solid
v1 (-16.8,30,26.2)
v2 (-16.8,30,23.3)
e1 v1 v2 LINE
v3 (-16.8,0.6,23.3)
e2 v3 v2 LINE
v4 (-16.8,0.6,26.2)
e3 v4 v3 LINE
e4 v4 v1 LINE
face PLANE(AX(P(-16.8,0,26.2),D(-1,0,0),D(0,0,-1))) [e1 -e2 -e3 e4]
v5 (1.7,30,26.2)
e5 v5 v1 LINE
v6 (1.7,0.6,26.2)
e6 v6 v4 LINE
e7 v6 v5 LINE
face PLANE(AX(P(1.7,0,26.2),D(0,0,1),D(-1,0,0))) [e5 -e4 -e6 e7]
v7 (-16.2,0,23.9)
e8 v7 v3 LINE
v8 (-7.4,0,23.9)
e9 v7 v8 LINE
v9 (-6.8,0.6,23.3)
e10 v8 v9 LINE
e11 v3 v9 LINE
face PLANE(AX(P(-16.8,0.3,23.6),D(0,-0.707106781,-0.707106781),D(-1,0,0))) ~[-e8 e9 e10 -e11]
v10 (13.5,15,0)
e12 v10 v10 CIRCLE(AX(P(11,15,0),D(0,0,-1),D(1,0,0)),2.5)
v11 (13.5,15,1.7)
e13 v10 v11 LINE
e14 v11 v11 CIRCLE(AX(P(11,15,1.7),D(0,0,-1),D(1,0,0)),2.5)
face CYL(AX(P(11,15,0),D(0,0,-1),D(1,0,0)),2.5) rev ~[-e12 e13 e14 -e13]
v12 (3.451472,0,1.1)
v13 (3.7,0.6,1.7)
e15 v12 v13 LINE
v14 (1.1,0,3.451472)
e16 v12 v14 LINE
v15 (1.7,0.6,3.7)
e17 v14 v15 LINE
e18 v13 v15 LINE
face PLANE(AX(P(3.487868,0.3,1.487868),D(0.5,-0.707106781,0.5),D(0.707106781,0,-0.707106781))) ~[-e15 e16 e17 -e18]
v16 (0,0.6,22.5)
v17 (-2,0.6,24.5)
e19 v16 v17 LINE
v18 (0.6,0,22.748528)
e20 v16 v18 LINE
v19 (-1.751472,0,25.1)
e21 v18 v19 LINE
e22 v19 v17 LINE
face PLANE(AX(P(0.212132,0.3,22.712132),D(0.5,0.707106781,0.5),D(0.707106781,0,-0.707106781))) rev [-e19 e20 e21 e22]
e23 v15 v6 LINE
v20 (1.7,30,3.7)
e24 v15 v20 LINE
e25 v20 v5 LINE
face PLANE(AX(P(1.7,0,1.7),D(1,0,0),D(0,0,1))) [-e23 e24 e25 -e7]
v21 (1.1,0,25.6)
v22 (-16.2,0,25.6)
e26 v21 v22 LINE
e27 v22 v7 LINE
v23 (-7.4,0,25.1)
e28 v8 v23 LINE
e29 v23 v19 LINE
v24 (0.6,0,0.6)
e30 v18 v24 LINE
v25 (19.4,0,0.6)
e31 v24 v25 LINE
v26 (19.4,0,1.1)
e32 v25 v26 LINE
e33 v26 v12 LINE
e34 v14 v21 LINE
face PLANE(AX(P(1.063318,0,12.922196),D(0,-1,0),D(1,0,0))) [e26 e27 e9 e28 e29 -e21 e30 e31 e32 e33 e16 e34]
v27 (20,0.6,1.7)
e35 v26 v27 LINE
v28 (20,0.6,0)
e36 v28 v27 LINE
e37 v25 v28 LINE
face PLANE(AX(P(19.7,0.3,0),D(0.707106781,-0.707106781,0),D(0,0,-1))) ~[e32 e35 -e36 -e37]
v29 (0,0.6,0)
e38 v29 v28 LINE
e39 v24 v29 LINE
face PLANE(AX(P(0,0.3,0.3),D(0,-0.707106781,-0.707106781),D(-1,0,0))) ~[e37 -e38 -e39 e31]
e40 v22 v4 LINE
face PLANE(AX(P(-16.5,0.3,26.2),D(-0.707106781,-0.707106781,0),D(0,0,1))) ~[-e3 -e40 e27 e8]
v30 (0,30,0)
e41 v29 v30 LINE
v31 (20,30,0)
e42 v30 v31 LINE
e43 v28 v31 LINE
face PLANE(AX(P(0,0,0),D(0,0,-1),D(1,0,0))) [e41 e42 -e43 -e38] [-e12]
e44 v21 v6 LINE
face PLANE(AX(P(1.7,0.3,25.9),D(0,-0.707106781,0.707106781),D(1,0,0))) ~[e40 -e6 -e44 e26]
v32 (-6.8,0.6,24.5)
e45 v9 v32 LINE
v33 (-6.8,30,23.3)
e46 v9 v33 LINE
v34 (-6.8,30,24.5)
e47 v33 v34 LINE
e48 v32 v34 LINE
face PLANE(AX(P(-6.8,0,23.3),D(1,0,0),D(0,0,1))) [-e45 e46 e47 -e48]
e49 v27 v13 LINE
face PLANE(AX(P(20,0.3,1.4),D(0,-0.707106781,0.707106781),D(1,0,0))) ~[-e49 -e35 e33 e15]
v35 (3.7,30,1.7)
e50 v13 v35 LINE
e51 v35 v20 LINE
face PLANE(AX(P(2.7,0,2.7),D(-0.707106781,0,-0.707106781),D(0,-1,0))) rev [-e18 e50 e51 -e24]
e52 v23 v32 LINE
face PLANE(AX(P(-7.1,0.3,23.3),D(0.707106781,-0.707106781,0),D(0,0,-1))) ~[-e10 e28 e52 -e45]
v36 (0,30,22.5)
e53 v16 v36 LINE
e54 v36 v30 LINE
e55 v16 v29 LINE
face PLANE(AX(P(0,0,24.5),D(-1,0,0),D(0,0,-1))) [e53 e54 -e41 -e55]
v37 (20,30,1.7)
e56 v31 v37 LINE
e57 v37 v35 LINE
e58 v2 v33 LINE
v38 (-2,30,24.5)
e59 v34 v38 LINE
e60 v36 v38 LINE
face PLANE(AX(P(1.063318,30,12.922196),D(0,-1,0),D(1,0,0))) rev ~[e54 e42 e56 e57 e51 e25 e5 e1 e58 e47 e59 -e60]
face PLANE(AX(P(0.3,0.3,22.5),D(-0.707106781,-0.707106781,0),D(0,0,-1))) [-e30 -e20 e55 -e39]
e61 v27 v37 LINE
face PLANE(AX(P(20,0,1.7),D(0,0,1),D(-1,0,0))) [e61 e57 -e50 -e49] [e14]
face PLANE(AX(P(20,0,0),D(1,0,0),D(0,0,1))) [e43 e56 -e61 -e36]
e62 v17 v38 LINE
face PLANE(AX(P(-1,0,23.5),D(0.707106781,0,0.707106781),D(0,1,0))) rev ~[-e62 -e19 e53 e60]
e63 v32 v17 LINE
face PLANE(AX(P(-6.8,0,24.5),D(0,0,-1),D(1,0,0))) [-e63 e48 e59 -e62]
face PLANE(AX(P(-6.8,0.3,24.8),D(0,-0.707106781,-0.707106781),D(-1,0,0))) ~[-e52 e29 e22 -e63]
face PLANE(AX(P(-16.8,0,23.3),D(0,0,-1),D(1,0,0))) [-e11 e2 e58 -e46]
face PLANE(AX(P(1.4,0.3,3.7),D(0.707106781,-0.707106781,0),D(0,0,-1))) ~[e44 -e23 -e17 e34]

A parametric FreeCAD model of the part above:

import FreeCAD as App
import Part
import Sketcher
from FreeCAD import Vector
Q = App.Units.Quantity


def edges_at(feature, points):
    """Names of the edges that pass closest to the given points."""
    edges = feature.Shape.Edges
    near = lambda p: min(range(len(edges)), key=lambda i: edges[i].distToShape(Part.Vertex(*p))[0])
    return sorted({f"Edge{near(p) + 1}" for p in points})


def add_polygon(sketch, points):
    """Adds a closed chain of lines whose ends are joined by coincident constraints."""
    first, n = sketch.GeometryCount, len(points)
    for a, b in zip(points, points[1:] + points[:1]):
        sketch.addGeometry(Part.LineSegment(App.Vector(*a, 0), App.Vector(*b, 0)), False)
    for i in range(n):
        sketch.addConstraint(Sketcher.Constraint("Coincident", first + i, 2, first + (i + 1) % n, 1))

doc = App.newDocument("Part")
body = doc.addObject("PartDesign::Body", "Body")

sketch1 = doc.addObject("Sketcher::SketchObject", "Sketch")
body.addObject(sketch1)
sketch1.AttachmentSupport = (doc.XZ_Plane, [""])
sketch1.MapMode = "FlatFace"
add_polygon(sketch1, [(0, 24.5), (0, 0), (20, 0), (20, 1.7), (1.7, 1.7), (1.7, 26.2), (-16.8, 26.2), (-16.8, 23.3), (-6.8, 23.3), (-6.8, 24.5)])
sketch1.addConstraint([
    Sketcher.Constraint("Vertical", 0),
    Sketcher.Constraint("Horizontal", 1),
    Sketcher.Constraint("Vertical", 2),
    Sketcher.Constraint("Horizontal", 3),
    Sketcher.Constraint("Vertical", 4),
    Sketcher.Constraint("Horizontal", 5),
    Sketcher.Constraint("Vertical", 6),
    Sketcher.Constraint("Horizontal", 7),
    Sketcher.Constraint("Vertical", 8),
    Sketcher.Constraint("Horizontal", 9),
    Sketcher.Constraint("Coincident", 0, 2, -1, 1),
    Sketcher.Constraint("Equal", 0, 4),
    Sketcher.Constraint("DistanceX", 1, 1, 1, 2, Q("20 mm")),
    Sketcher.Constraint("DistanceX", 7, 1, 7, 2, Q("10 mm")),
    Sketcher.Constraint("DistanceX", 3, 2, 3, 1, Q("18.3 mm")),
    Sketcher.Constraint("DistanceX", 5, 2, 5, 1, Q("18.5 mm")),
    Sketcher.Constraint("DistanceY", 0, 2, 0, 1, Q("24.5 mm")),
    Sketcher.Constraint("DistanceY", 2, 1, 2, 2, Q("1.7 mm")),
    Sketcher.Constraint("DistanceY", 6, 2, 6, 1, Q("2.9 mm")),
])
pad1 = doc.addObject("PartDesign::Pad", "Pad")
body.addObject(pad1)
pad1.Profile = sketch1
pad1.Length = 30
pad1.Reversed = True
doc.recompute()

chamfer = doc.addObject("PartDesign::Chamfer", "Chamfer")
body.addObject(chamfer)
chamfer.Base = (pad1, edges_at(pad1, [(1.7, 15, 1.7), (0, 15, 24.5)]))
chamfer.Size = 2
doc.recompute()

chamfer2 = doc.addObject("PartDesign::Chamfer", "Chamfer001")
body.addObject(chamfer2)
chamfer2.Base = (chamfer, edges_at(chamfer, [
    (1.7, 0, 14.95),
    (2.7, 0, 2.7),
    (-7.55, 0, 26.2),
    (11.85, 0, 1.7),
    (-16.8, 0, 24.75),
    (20, 0, 0.85),
    (-11.8, 0, 23.3),
    (10, 0, 0),
    (-6.8, 0, 23.9),
    (0, 0, 11.25),
    (-4.4, 0, 24.5),
    (-1, 0, 23.5),
]))
chamfer2.Size = 0.6

sketch2 = doc.addObject("Sketcher::SketchObject", "Sketch001")
body.addObject(sketch2)
sketch2.AttachmentSupport = (doc.XY_Plane, [""])
sketch2.MapMode = "FlatFace"
sketch2.addGeometry(Part.Circle(Vector(11, 15, 0), Vector(0, 0, 1), 2.5), False)
sketch2.addConstraint([
    Sketcher.Constraint("Diameter", 0, Q("5 mm")),
    Sketcher.Constraint("DistanceX", -1, 1, 0, 3, Q("11 mm")),
    Sketcher.Constraint("DistanceY", -1, 1, 0, 3, Q("15 mm")),
])
pocket1 = doc.addObject("PartDesign::Pocket", "Pocket")
body.addObject(pocket1)
pocket1.Profile = sketch2
pocket1.Type = "ThroughAll"
pocket1.Reversed = True

doc.recompute()
